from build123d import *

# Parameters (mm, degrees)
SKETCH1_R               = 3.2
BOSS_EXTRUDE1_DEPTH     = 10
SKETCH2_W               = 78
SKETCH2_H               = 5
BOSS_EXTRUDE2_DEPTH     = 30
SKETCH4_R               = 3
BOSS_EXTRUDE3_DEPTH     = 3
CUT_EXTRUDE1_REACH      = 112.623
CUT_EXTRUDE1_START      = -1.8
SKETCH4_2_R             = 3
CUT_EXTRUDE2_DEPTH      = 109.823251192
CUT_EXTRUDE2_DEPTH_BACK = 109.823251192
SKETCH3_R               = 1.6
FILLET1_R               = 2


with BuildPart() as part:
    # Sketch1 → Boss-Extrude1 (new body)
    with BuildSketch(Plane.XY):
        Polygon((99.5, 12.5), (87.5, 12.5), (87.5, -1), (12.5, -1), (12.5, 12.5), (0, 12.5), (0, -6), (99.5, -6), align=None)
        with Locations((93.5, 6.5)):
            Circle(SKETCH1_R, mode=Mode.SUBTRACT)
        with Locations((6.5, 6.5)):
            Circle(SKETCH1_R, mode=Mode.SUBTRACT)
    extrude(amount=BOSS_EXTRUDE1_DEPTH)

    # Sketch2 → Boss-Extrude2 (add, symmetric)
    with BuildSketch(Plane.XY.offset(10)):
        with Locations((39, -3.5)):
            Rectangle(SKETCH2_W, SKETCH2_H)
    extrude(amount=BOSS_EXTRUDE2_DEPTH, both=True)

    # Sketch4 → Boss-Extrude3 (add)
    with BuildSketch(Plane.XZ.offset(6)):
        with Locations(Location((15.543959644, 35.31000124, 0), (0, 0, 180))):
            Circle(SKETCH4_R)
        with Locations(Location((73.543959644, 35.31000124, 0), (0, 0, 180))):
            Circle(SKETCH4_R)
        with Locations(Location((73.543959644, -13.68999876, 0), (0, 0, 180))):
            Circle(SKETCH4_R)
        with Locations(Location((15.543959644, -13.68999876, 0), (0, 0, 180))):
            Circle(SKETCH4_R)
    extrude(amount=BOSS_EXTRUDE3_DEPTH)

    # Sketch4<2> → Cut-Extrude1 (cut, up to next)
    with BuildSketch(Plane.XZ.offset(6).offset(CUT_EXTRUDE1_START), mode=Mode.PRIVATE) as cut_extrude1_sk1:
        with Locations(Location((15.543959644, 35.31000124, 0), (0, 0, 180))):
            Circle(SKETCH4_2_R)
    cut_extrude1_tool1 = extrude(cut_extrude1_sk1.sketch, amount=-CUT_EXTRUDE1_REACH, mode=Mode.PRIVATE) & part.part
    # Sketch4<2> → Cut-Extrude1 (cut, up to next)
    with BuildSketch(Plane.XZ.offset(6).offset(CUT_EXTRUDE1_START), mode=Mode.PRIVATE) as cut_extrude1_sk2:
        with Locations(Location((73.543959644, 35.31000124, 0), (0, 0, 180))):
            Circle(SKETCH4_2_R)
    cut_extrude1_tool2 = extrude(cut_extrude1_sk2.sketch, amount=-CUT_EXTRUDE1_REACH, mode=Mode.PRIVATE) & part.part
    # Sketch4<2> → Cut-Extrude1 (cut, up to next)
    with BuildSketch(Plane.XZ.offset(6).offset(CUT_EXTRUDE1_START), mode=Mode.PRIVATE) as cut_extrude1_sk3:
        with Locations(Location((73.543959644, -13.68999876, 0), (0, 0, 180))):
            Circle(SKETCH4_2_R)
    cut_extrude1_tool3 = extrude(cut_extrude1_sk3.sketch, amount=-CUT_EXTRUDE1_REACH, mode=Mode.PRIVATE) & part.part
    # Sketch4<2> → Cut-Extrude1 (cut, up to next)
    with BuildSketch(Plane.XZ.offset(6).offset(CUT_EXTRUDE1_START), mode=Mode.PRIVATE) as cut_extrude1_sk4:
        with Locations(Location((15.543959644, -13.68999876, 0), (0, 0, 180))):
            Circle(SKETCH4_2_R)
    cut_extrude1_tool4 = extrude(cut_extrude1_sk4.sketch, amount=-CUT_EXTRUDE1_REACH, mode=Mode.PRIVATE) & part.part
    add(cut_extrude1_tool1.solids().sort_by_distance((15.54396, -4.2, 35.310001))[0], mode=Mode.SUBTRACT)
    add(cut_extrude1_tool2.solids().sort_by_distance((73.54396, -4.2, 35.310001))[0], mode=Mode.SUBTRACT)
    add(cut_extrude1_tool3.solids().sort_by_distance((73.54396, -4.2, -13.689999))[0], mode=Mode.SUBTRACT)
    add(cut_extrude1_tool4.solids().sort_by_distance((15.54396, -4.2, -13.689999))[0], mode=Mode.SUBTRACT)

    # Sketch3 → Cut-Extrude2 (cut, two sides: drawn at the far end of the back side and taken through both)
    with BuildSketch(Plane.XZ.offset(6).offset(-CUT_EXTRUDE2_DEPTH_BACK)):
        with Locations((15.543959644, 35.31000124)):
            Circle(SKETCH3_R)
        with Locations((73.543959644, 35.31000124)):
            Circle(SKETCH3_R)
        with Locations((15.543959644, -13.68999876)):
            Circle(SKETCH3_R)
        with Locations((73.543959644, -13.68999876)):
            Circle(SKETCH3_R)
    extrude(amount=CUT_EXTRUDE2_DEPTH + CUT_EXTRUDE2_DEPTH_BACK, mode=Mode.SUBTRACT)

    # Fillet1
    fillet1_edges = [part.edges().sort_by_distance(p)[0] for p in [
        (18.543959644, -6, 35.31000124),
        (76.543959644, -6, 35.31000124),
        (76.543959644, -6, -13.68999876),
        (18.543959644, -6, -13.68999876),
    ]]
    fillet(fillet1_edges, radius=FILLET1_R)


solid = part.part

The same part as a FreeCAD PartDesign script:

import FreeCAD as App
import Part
import Sketcher

V = App.Vector
Q = App.Units.Quantity


def edges_at(feature, points):
    """Names of the edges that pass closest to the given points."""
    edges = feature.Shape.Edges
    near = lambda p: min(range(len(edges)), key=lambda i: edges[i].distToShape(Part.Vertex(*p))[0])
    return sorted({f"Edge{near(p) + 1}" for p in points})

doc = App.newDocument("Part")
body = doc.addObject("PartDesign::Body", "Body")

# Sketch on XY plane
sketch1 = doc.addObject("Sketcher::SketchObject", "Sketch")
body.addObject(sketch1)
sketch1.AttachmentSupport = (doc.XY_Plane, [""])
sketch1.MapMode = "FlatFace"
sketch1.addGeometry([
    Part.LineSegment(V(99.5, 12.5, 0), V(87.5, 12.5, 0)),  # 0
    Part.LineSegment(V(87.5, 12.5, 0), V(87.5, -1, 0)),  # 1
    Part.LineSegment(V(87.5, -1, 0), V(12.5, -1, 0)),  # 2
    Part.LineSegment(V(12.5, -1, 0), V(12.5, 12.5, 0)),  # 3
    Part.LineSegment(V(12.5, 12.5, 0), V(0, 12.5, 0)),  # 4
    Part.LineSegment(V(0, 12.5, 0), V(0, -6, 0)),  # 5
    Part.LineSegment(V(0, -6, 0), V(99.5, -6, 0)),  # 6
    Part.LineSegment(V(99.5, -6, 0), V(99.5, 12.5, 0)),  # 7
    Part.Circle(V(6.5, 6.5, 0), V(0, 0, 1), 3.2),  # 8
    Part.Circle(V(93.5, 6.5, 0), V(0, 0, 1), 3.2),  # 9
], False)
sketch1.addConstraint([
    Sketcher.Constraint("Coincident", 0, 2, 1, 1),
    Sketcher.Constraint("Coincident", 1, 2, 2, 1),
    Sketcher.Constraint("Coincident", 2, 2, 3, 1),
    Sketcher.Constraint("Coincident", 3, 2, 4, 1),
    Sketcher.Constraint("Coincident", 4, 2, 5, 1),
    Sketcher.Constraint("Coincident", 5, 2, 6, 1),
    Sketcher.Constraint("Coincident", 6, 2, 7, 1),
    Sketcher.Constraint("Coincident", 7, 2, 0, 1),
    Sketcher.Constraint("Horizontal", 0),
    Sketcher.Constraint("Vertical", 1),
    Sketcher.Constraint("Horizontal", 2),
    Sketcher.Constraint("Vertical", 3),
    Sketcher.Constraint("Horizontal", 4),
    Sketcher.Constraint("Vertical", 5),
    Sketcher.Constraint("Horizontal", 6),
    Sketcher.Constraint("Vertical", 7),
    Sketcher.Constraint("Equal", 8, 9),
    Sketcher.Constraint("PointOnObject", 4, 2, -2),
    Sketcher.Constraint("Horizontal", 8, 3, 9, 3),
    Sketcher.Constraint("Horizontal", 0, 2, 3, 2),
    Sketcher.Constraint("Diameter", 8, Q("6.4 mm")),
    Sketcher.Constraint("DistanceX", 0, 2, 0, 1, Q("12 mm")),
    Sketcher.Constraint("DistanceX", 2, 2, 2, 1, Q("75 mm")),
    Sketcher.Constraint("DistanceX", 4, 2, 4, 1, Q("12.5 mm")),
    Sketcher.Constraint("DistanceY", 1, 2, 1, 1, Q("13.5 mm")),
    Sketcher.Constraint("DistanceY", 5, 2, 5, 1, Q("18.5 mm")),
    Sketcher.Constraint("DistanceY", 1, 2, -1, 1, Q("1 mm")),
    Sketcher.Constraint("DistanceX", 8, 3, 9, 3, Q("87 mm")),
    Sketcher.Constraint("DistanceX", 0, 2, 9, 3, Q("6 mm")),
    Sketcher.Constraint("DistanceY", 9, 3, 0, 2, Q("6 mm")),
])
pad1 = doc.addObject("PartDesign::Pad", "Pad")
body.addObject(pad1)
pad1.Profile = sketch1
pad1.Length = 10

# Sketch on XY plane
sketch2 = doc.addObject("Sketcher::SketchObject", "Sketch001")
body.addObject(sketch2)
sketch2.AttachmentSupport = (doc.XY_Plane, [""])
sketch2.MapMode = "FlatFace"
sketch2.AttachmentOffset = App.Placement(V(0, 0, 10), App.Rotation())
sketch2.addGeometry([
    Part.LineSegment(V(0, -1, 0), V(0, -6, 0)),
    Part.LineSegment(V(0, -6, 0), V(78, -6, 0)),
    Part.LineSegment(V(78, -6, 0), V(78, -1, 0)),
    Part.LineSegment(V(78, -1, 0), V(0, -1, 0)),
], False)
sketch2.addConstraint([
    Sketcher.Constraint("Coincident", 0, 2, 1, 1),
    Sketcher.Constraint("Coincident", 1, 2, 2, 1),
    Sketcher.Constraint("Coincident", 2, 2, 3, 1),
    Sketcher.Constraint("Coincident", 3, 2, 0, 1),
    Sketcher.Constraint("Vertical", 0),
    Sketcher.Constraint("Horizontal", 1),
    Sketcher.Constraint("Vertical", 2),
    Sketcher.Constraint("Horizontal", 3),
    Sketcher.Constraint("PointOnObject", 0, 2, -2),
    Sketcher.Constraint("DistanceX", 1, 1, 1, 2, Q("78 mm")),
    Sketcher.Constraint("DistanceY", 0, 2, 0, 1, Q("5 mm")),
    Sketcher.Constraint("DistanceY", 0, 2, -1, 1, Q("6 mm")),
])
pad2 = doc.addObject("PartDesign::Pad", "Pad001")
body.addObject(pad2)
pad2.Profile = sketch2
pad2.Length = 60
pad2.Midplane = True

# Sketch on XZ plane
sketch3 = doc.addObject("Sketcher::SketchObject", "Sketch002")
body.addObject(sketch3)
sketch3.AttachmentSupport = (doc.XZ_Plane, [""])
sketch3.MapMode = "FlatFace"
sketch3.AttachmentOffset = App.Placement(V(0, 0, 6), App.Rotation())
sketch3.addGeometry([
    Part.Circle(V(15.5, 35.3, 0), V(0, 0, 1), 3),
    Part.Circle(V(73.5, 35.3, 0), V(0, 0, 1), 3),
    Part.Circle(V(73.5, -13.7, 0), V(0, 0, 1), 3),
    Part.Circle(V(15.5, -13.7, 0), V(0, 0, 1), 3),
], False)
sketch3.addConstraint([
    Sketcher.Constraint("Equal", 0, 1),
    Sketcher.Constraint("Equal", 1, 2),
    Sketcher.Constraint("Equal", 2, 3),
    Sketcher.Constraint("Horizontal", 0, 3, 1, 3),
    Sketcher.Constraint("Horizontal", 2, 3, 3, 3),
    Sketcher.Constraint("Vertical", 1, 3, 2, 3),
    Sketcher.Constraint("Vertical", 0, 3, 3, 3),
    Sketcher.Constraint("Diameter", 0, Q("6 mm")),
    Sketcher.Constraint("DistanceX", 0, 3, 1, 3, Q("58 mm")),
    Sketcher.Constraint("DistanceY", 2, 3, 1, 3, Q("49 mm")),
    Sketcher.Constraint("DistanceY", -1, 1, 0, 3, Q("35.310001 mm")),
    Sketcher.Constraint("DistanceX", -1, 1, 0, 3, Q("15.54396 mm")),
])
pad3 = doc.addObject("PartDesign::Pad", "Pad002")
body.addObject(pad3)
pad3.Profile = sketch3
pad3.Length = 3

# Sketch on XZ plane
sketch4 = doc.addObject("Sketcher::SketchObject", "Sketch003")
body.addObject(sketch4)
sketch4.AttachmentSupport = (doc.XZ_Plane, [""])
sketch4.MapMode = "FlatFace"
sketch4.AttachmentOffset = App.Placement(V(0, 0, 4.2), App.Rotation())
sketch4.addGeometry(Part.Circle(V(15.5, 35.3, 0), V(0, 0, 1), 3), False)
sketch4.addConstraint([
    Sketcher.Constraint("Diameter", 0, Q("6 mm")),
    Sketcher.Constraint("DistanceY", -1, 1, 0, 3, Q("35.310001 mm")),
    Sketcher.Constraint("DistanceX", -1, 1, 0, 3, Q("15.54396 mm")),
])
pocket1 = doc.addObject("PartDesign::Pocket", "Pocket")
body.addObject(pocket1)
pocket1.Profile = sketch4
pocket1.Type = "UpToFirst"

# Sketch on XZ plane
sketch5 = doc.addObject("Sketcher::SketchObject", "Sketch004")
body.addObject(sketch5)
sketch5.AttachmentSupport = (doc.XZ_Plane, [""])
sketch5.MapMode = "FlatFace"
sketch5.AttachmentOffset = App.Placement(V(0, 0, 4.2), App.Rotation())
sketch5.addGeometry(Part.Circle(V(73.5, 35.3, 0), V(0, 0, 1), 3), False)
sketch5.addConstraint([
    Sketcher.Constraint("Diameter", 0, Q("6 mm")),
    Sketcher.Constraint("DistanceY", -1, 1, 0, 3, Q("35.310001 mm")),
    Sketcher.Constraint("DistanceX", -1, 1, 0, 3, Q("73.54396 mm")),
])
pocket2 = doc.addObject("PartDesign::Pocket", "Pocket001")
body.addObject(pocket2)
pocket2.Profile = sketch5
pocket2.Type = "UpToFirst"

# Sketch on XZ plane
sketch6 = doc.addObject("Sketcher::SketchObject", "Sketch005")
body.addObject(sketch6)
sketch6.AttachmentSupport = (doc.XZ_Plane, [""])
sketch6.MapMode = "FlatFace"
sketch6.AttachmentOffset = App.Placement(V(0, 0, 4.2), App.Rotation())
sketch6.addGeometry(Part.Circle(V(73.5, -13.7, 0), V(0, 0, 1), 3), False)
sketch6.addConstraint([
    Sketcher.Constraint("Diameter", 0, Q("6 mm")),
    Sketcher.Constraint("DistanceY", 0, 3, -1, 1, Q("13.689999 mm")),
    Sketcher.Constraint("DistanceX", -1, 1, 0, 3, Q("73.54396 mm")),
])
pocket3 = doc.addObject("PartDesign::Pocket", "Pocket002")
body.addObject(pocket3)
pocket3.Profile = sketch6
pocket3.Type = "UpToFirst"

# Sketch on XZ plane
sketch7 = doc.addObject("Sketcher::SketchObject", "Sketch006")
body.addObject(sketch7)
sketch7.AttachmentSupport = (doc.XZ_Plane, [""])
sketch7.MapMode = "FlatFace"
sketch7.AttachmentOffset = App.Placement(V(0, 0, 4.2), App.Rotation())
sketch7.addGeometry(Part.Circle(V(15.5, -13.7, 0), V(0, 0, 1), 3), False)
sketch7.addConstraint([
    Sketcher.Constraint("Diameter", 0, Q("6 mm")),
    Sketcher.Constraint("DistanceY", 0, 3, -1, 1, Q("13.689999 mm")),
    Sketcher.Constraint("DistanceX", -1, 1, 0, 3, Q("15.54396 mm")),
])
pocket4 = doc.addObject("PartDesign::Pocket", "Pocket003")
body.addObject(pocket4)
pocket4.Profile = sketch7
pocket4.Type = "UpToFirst"

# Sketch on XZ plane
sketch8 = doc.addObject("Sketcher::SketchObject", "Sketch007")
body.addObject(sketch8)
sketch8.AttachmentSupport = (doc.XZ_Plane, [""])
sketch8.MapMode = "FlatFace"
sketch8.AttachmentOffset = App.Placement(V(0, 0, 6), App.Rotation())
sketch8.addGeometry([
    Part.Circle(V(15.5, 35.3, 0), V(0, 0, 1), 1.6),
    Part.Circle(V(73.5, 35.3, 0), V(0, 0, 1), 1.6),
    Part.Circle(V(15.5, -13.7, 0), V(0, 0, 1), 1.6),
    Part.Circle(V(73.5, -13.7, 0), V(0, 0, 1), 1.6),
], False)
sketch8.addConstraint([
    Sketcher.Constraint("Equal", 0, 1),
    Sketcher.Constraint("Equal", 1, 2),
    Sketcher.Constraint("Equal", 2, 3),
    Sketcher.Constraint("Horizontal", 0, 3, 1, 3),
    Sketcher.Constraint("Horizontal", 2, 3, 3, 3),
    Sketcher.Constraint("Vertical", 0, 3, 2, 3),
    Sketcher.Constraint("Vertical", 1, 3, 3, 3),
    Sketcher.Constraint("Diameter", 0, Q("3.2 mm")),
    Sketcher.Constraint("DistanceX", 0, 3, 1, 3, Q("58 mm")),
    Sketcher.Constraint("DistanceY", 2, 3, 0, 3, Q("49 mm")),
    Sketcher.Constraint("DistanceY", -1, 1, 0, 3, Q("35.310001 mm")),
    Sketcher.Constraint("DistanceX", -1, 1, 0, 3, Q("15.54396 mm")),
])
pocket5 = doc.addObject("PartDesign::Pocket", "Pocket004")
body.addObject(pocket5)
pocket5.Profile = sketch8
pocket5.Type = "ThroughAll"
pocket5.Midplane = True
doc.recompute()

fillet = doc.addObject("PartDesign::Fillet", "Fillet")
body.addObject(fillet)
fillet.Base = (pocket5, edges_at(pocket5, [
    (18.544, -6, 35.31),
    (76.544, -6, 35.31),
    (76.544, -6, -13.69),
    (18.544, -6, -13.69),
]))
fillet.Radius = 2

doc.recompute()
